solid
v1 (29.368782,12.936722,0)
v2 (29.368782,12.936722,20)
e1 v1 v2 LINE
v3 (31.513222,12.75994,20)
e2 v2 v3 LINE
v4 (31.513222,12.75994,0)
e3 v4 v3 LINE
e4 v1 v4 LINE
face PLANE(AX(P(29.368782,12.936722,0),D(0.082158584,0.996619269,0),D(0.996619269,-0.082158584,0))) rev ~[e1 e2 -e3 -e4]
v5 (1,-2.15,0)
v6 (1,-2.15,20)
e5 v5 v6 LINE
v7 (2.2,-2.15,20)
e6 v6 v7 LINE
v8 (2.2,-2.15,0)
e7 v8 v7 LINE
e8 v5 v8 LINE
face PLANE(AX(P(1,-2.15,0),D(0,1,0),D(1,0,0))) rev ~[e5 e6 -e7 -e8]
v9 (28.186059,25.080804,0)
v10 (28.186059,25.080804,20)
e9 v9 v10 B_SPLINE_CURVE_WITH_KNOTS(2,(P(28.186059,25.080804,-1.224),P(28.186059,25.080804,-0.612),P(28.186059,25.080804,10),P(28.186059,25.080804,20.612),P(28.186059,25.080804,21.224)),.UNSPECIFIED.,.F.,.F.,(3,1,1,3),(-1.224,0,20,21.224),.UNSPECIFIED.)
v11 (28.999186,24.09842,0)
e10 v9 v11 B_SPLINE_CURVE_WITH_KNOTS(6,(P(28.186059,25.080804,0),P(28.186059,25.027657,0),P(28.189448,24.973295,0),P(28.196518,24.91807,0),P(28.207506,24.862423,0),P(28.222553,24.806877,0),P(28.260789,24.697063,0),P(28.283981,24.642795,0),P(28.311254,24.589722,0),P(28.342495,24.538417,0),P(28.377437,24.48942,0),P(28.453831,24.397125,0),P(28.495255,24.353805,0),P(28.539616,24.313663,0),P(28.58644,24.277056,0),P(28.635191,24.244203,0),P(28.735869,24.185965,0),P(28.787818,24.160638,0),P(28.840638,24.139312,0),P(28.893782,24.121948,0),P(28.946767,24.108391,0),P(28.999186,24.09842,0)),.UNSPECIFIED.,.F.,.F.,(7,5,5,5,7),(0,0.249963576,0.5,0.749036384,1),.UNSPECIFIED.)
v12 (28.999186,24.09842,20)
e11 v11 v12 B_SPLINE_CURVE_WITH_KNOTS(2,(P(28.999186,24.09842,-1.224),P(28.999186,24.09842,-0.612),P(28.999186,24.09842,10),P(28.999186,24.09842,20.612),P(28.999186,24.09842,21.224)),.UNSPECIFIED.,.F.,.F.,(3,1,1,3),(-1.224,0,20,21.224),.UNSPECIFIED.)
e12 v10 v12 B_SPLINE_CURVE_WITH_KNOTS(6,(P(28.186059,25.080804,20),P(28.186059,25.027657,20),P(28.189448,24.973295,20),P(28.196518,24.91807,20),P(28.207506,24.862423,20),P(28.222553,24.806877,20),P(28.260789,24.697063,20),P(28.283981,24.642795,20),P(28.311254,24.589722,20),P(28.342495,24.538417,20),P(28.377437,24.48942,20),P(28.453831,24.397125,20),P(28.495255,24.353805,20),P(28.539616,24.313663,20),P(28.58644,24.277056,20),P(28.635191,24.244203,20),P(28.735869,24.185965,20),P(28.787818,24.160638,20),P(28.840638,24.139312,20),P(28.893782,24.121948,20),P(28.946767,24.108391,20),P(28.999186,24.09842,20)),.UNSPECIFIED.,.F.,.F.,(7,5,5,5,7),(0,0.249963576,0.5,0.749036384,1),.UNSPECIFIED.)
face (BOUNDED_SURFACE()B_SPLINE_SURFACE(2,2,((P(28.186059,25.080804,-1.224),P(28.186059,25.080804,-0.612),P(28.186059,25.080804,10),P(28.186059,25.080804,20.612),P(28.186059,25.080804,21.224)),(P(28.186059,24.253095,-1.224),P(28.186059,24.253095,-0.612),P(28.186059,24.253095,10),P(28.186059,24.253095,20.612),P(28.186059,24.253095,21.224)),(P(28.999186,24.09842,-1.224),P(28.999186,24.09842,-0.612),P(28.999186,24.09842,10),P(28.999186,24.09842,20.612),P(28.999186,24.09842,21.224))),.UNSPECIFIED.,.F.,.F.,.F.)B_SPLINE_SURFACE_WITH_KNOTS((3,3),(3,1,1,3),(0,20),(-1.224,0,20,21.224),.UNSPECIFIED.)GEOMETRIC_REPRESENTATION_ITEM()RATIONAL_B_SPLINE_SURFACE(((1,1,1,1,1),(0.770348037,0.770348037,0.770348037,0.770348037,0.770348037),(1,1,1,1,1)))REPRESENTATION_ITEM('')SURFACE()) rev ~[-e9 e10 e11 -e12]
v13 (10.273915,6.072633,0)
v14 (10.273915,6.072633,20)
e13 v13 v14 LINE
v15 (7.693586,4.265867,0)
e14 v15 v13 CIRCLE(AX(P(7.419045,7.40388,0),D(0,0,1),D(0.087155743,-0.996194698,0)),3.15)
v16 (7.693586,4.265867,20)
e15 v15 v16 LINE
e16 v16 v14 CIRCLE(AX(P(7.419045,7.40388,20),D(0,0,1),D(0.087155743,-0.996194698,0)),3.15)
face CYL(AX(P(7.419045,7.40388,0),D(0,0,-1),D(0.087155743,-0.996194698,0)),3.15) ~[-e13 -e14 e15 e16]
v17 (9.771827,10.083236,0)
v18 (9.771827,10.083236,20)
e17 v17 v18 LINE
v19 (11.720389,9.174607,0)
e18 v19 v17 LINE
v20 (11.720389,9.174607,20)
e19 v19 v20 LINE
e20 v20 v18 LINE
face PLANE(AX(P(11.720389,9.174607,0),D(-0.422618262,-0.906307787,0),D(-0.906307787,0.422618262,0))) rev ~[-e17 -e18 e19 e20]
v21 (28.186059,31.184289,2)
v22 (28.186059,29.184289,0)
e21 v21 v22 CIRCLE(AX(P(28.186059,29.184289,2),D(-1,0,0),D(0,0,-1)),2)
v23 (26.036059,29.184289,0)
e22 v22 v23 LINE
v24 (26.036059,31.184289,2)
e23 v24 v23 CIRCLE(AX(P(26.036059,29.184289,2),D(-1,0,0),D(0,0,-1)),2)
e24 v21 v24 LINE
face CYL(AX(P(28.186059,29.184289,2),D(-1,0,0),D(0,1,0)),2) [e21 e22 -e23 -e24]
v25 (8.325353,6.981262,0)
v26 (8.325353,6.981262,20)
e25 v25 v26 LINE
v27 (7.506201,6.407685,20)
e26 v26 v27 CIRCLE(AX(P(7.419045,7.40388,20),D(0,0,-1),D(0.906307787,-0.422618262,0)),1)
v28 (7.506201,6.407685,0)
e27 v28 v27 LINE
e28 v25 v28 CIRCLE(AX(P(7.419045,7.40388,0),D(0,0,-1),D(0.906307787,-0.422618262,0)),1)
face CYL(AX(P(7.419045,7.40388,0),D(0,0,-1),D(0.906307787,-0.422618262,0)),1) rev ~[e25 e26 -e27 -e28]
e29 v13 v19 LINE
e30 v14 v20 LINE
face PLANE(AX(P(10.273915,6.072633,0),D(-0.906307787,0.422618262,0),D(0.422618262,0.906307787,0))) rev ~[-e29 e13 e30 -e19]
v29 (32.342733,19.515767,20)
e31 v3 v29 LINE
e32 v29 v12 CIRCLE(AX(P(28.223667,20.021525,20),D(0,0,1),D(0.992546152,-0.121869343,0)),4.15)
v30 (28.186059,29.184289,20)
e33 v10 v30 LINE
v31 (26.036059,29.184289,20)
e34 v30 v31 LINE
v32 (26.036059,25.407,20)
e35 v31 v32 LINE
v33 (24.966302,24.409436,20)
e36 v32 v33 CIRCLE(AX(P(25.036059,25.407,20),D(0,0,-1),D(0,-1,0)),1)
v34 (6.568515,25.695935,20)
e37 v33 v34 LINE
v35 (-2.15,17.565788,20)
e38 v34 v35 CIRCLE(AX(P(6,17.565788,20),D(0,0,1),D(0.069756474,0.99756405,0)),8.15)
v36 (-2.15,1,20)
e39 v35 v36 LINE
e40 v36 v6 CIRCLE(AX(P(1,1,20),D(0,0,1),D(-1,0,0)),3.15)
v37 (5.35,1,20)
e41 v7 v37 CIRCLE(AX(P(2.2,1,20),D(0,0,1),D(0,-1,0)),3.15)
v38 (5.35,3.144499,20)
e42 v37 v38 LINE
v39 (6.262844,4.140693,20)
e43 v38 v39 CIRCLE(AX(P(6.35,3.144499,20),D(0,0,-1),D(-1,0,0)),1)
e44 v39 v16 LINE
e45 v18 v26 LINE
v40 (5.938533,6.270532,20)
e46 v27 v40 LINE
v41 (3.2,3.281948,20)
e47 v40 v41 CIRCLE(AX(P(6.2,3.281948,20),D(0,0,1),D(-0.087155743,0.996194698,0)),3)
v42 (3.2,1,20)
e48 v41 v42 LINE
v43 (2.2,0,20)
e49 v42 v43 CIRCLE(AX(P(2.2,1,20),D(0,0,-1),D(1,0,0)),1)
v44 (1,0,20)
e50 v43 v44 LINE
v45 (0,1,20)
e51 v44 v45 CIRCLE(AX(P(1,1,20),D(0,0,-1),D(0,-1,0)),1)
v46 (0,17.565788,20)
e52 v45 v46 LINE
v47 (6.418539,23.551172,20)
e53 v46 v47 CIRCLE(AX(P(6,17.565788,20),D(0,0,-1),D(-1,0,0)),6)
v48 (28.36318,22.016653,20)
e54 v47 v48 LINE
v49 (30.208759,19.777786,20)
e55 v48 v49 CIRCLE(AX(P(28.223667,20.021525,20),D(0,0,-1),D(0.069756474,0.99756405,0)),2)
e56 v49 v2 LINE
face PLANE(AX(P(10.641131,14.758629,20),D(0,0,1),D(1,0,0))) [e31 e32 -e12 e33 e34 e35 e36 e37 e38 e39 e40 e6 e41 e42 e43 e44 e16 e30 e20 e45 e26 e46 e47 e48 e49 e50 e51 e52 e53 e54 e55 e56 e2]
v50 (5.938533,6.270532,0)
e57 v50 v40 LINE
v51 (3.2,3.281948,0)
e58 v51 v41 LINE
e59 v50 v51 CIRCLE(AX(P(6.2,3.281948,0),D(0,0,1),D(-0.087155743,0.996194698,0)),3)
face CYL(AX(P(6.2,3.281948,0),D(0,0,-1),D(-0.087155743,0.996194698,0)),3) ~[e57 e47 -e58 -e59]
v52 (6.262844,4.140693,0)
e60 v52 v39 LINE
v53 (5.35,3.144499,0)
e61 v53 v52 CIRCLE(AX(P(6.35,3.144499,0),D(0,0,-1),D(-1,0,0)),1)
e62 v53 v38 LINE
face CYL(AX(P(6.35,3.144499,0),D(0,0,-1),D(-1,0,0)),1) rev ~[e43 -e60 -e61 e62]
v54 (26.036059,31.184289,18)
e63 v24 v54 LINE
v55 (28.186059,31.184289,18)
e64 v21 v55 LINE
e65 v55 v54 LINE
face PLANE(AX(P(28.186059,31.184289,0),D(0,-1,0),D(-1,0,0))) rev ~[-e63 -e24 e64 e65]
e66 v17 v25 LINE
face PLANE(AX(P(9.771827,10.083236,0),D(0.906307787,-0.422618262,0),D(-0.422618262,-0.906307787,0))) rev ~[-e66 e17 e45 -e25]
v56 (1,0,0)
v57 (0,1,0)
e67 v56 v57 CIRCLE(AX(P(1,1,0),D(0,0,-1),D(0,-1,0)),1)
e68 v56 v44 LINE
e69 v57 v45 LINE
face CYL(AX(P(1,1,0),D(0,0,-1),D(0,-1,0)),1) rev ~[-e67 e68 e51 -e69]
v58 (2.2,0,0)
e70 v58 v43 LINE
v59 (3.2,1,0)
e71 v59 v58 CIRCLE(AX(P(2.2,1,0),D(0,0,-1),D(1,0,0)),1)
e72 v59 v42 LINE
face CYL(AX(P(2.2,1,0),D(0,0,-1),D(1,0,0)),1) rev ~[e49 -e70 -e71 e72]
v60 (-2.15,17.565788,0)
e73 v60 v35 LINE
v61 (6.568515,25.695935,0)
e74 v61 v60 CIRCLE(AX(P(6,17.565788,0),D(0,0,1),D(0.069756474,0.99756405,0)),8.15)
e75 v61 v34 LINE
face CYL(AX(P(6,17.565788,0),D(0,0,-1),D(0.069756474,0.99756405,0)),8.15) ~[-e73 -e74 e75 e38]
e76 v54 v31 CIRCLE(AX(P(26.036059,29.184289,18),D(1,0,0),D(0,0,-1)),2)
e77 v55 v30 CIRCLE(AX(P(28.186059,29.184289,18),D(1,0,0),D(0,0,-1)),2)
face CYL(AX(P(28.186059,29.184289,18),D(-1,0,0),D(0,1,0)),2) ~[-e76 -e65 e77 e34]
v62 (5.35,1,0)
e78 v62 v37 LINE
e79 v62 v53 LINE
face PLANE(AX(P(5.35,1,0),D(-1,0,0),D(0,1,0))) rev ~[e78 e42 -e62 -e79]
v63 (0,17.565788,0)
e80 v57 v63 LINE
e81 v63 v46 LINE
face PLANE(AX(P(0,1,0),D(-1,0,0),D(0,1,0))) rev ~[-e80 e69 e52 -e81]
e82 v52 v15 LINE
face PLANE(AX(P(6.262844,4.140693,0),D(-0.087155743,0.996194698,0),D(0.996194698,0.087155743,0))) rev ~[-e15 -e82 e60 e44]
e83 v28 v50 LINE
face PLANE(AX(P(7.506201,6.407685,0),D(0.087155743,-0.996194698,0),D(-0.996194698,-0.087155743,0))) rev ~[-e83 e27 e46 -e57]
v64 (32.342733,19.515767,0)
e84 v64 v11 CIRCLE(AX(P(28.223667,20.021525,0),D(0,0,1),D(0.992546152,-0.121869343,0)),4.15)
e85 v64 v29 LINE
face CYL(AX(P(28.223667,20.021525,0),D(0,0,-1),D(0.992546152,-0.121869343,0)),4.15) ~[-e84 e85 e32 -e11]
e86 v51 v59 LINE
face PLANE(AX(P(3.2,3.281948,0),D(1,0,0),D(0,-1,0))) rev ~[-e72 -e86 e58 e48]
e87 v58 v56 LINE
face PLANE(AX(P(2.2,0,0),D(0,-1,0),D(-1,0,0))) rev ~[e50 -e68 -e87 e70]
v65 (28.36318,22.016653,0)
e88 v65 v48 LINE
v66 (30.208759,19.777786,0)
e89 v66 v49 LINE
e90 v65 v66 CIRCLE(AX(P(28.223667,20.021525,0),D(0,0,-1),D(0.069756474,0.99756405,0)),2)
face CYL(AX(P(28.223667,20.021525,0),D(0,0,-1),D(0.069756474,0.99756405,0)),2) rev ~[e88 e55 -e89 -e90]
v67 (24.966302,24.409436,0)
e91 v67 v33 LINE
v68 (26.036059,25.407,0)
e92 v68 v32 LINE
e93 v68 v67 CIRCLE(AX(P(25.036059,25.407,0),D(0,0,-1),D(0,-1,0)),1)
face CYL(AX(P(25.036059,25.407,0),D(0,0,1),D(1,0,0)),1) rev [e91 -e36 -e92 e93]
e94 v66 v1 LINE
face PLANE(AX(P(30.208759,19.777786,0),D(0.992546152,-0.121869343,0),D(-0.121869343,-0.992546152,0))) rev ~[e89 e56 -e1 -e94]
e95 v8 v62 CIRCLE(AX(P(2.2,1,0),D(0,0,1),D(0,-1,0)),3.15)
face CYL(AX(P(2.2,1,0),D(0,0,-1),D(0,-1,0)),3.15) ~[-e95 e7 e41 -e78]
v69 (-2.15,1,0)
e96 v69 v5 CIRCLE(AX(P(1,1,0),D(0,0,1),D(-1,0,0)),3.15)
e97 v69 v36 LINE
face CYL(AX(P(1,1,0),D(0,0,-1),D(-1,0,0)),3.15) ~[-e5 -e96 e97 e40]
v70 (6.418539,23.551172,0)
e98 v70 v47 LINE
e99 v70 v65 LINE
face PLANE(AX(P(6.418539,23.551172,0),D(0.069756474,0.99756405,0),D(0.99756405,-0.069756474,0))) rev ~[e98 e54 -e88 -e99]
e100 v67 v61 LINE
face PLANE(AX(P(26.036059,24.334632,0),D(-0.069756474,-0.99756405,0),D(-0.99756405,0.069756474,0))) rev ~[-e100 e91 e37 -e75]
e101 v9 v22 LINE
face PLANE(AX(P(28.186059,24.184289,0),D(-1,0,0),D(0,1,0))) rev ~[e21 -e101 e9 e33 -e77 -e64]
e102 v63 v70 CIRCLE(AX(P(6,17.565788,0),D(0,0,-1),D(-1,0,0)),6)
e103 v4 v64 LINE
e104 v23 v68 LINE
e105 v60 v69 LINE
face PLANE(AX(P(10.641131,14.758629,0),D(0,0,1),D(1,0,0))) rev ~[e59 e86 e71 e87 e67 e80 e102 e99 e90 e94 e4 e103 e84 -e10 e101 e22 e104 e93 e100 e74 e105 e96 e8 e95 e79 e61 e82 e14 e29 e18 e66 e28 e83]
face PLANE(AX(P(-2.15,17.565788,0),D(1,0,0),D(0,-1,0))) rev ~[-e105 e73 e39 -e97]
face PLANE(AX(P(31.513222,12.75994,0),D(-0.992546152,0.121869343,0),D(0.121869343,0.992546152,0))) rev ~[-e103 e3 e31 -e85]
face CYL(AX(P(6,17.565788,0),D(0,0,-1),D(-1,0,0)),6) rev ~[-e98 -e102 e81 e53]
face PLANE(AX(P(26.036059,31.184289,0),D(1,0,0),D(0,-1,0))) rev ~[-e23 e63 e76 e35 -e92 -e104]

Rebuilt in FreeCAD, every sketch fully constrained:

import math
import FreeCAD as App
import Part
import Sketcher
from FreeCAD import Vector
Q = App.Units.Quantity


def edges_at(feature, points):
    """Names of the edges that pass closest to the given points."""
    edges = feature.Shape.Edges
    near = lambda p: min(range(len(edges)), key=lambda i: edges[i].distToShape(Part.Vertex(*p))[0])
    return sorted({f"Edge{near(p) + 1}" for p in points})

doc = App.newDocument("Part")
body = doc.addObject("PartDesign::Body", "Body")

sketch1 = body.newObject("Sketcher::SketchObject", "Sketch")
sketch1.AttachmentSupport = (doc.getObject("XY_Plane"), [""])
sketch1.MapMode = "FlatFace"
sketch1.addGeometry([
    Part.ArcOfCircle(Part.Circle(Vector(1, 1, 0), Vector(0, 0, 1), 1), math.radians(180), math.radians(270)),
    Part.LineSegment(Vector(0, 1, 0), Vector(0, 17.57, 0)),
    Part.ArcOfCircle(Part.Circle(Vector(6, 17.57, 0), Vector(0, 0, 1), 6), math.radians(86), math.radians(180)),
    Part.LineSegment(Vector(6.42, 23.55, 0), Vector(28.36, 22.02, 0)),
    Part.ArcOfCircle(Part.Circle(Vector(28.22, 20.02, 0), Vector(0, 0, 1), 2), math.radians(-7), math.radians(86)),
    Part.LineSegment(Vector(30.21, 19.78, 0), Vector(29.37, 12.94, 0)),
    Part.LineSegment(Vector(29.37, 12.94, 0), Vector(31.51, 12.76, 0)),
    Part.LineSegment(Vector(31.51, 12.76, 0), Vector(32.34, 19.52, 0)),
    Part.ArcOfCircle(Part.Circle(Vector(28.22, 20.02, 0), Vector(0, 0, 1), 4.15), math.radians(-7), math.radians(86)),
    Part.LineSegment(Vector(28.51, 24.16, 0), Vector(28.19, 24.18, 0)),
    Part.LineSegment(Vector(28.19, 24.18, 0), Vector(28.19, 31.18, 0)),
    Part.LineSegment(Vector(28.19, 31.18, 0), Vector(26.04, 31.18, 0)),
    Part.LineSegment(Vector(26.04, 31.18, 0), Vector(26.04, 24.33, 0)),
    Part.LineSegment(Vector(26.04, 24.33, 0), Vector(6.57, 25.7, 0)),
    Part.ArcOfCircle(Part.Circle(Vector(6, 17.57, 0), Vector(0, 0, 1), 8.15), math.radians(86), math.radians(180)),
    Part.LineSegment(Vector(-2.15, 17.57, 0), Vector(-2.15, 1, 0)),
    Part.ArcOfCircle(Part.Circle(Vector(1, 1, 0), Vector(0, 0, 1), 3.15), math.radians(180), math.radians(270)),
    Part.LineSegment(Vector(1, -2.15, 0), Vector(2.2, -2.15, 0)),
    Part.ArcOfCircle(Part.Circle(Vector(2.2, 1, 0), Vector(0, 0, 1), 3.15), math.radians(-90), math.radians(0)),
    Part.LineSegment(Vector(5.35, 1, 0), Vector(5.35, 3.14, 0)),
    Part.ArcOfCircle(Part.Circle(Vector(6.35, 3.14, 0), Vector(0, 0, 1), 1), math.radians(95), math.radians(180)),
    Part.LineSegment(Vector(6.26, 4.14, 0), Vector(7.69, 4.27, 0)),
    Part.ArcOfCircle(Part.Circle(Vector(7.42, 7.4, 0), Vector(0, 0, 1), 3.15), math.radians(-85), math.radians(-25)),
    Part.LineSegment(Vector(10.27, 6.07, 0), Vector(11.72, 9.17, 0)),
    Part.LineSegment(Vector(11.72, 9.17, 0), Vector(9.77, 10.08, 0)),
    Part.LineSegment(Vector(9.77, 10.08, 0), Vector(8.33, 6.98, 0)),
    Part.ArcOfCircle(Part.Circle(Vector(7.42, 7.4, 0), Vector(0, 0, 1), 1), math.radians(-85), math.radians(-25)),
    Part.LineSegment(Vector(7.51, 6.41, 0), Vector(5.94, 6.27, 0)),
    Part.ArcOfCircle(Part.Circle(Vector(6.2, 3.28, 0), Vector(0, 0, 1), 3), math.radians(95), math.radians(180)),
    Part.LineSegment(Vector(3.2, 3.28, 0), Vector(3.2, 1, 0)),
    Part.ArcOfCircle(Part.Circle(Vector(2.2, 1, 0), Vector(0, 0, 1), 1), math.radians(-90), math.radians(0)),
    Part.LineSegment(Vector(2.2, 0, 0), Vector(1, 0, 0)),
], False)
sketch1.addConstraint([
    Sketcher.Constraint("Tangent", 0, 1, 1, 1),
    Sketcher.Constraint("Tangent", 1, 2, 2, 2),
    Sketcher.Constraint("Tangent", 2, 1, 3, 1),
    Sketcher.Constraint("Tangent", 3, 2, 4, 2),
    Sketcher.Constraint("Tangent", 4, 1, 5, 1),
    Sketcher.Constraint("Coincident", 5, 2, 6, 1),
    Sketcher.Constraint("Coincident", 6, 2, 7, 1),
    Sketcher.Constraint("Tangent", 7, 2, 8, 1),
    Sketcher.Constraint("Tangent", 8, 2, 9, 1),
    Sketcher.Constraint("Coincident", 9, 2, 10, 1),
    Sketcher.Constraint("Coincident", 10, 2, 11, 1),
    Sketcher.Constraint("Coincident", 11, 2, 12, 1),
    Sketcher.Constraint("Coincident", 12, 2, 13, 1),
    Sketcher.Constraint("Tangent", 13, 2, 14, 1),
    Sketcher.Constraint("Tangent", 14, 2, 15, 1),
    Sketcher.Constraint("Tangent", 15, 2, 16, 1),
    Sketcher.Constraint("Tangent", 16, 2, 17, 1),
    Sketcher.Constraint("Tangent", 17, 2, 18, 1),
    Sketcher.Constraint("Tangent", 18, 2, 19, 1),
    Sketcher.Constraint("Tangent", 19, 2, 20, 2),
    Sketcher.Constraint("Tangent", 20, 1, 21, 1),
    Sketcher.Constraint("Tangent", 21, 2, 22, 1),
    Sketcher.Constraint("Tangent", 22, 2, 23, 1),
    Sketcher.Constraint("Coincident", 23, 2, 24, 1),
    Sketcher.Constraint("Coincident", 24, 2, 25, 1),
    Sketcher.Constraint("Tangent", 25, 2, 26, 2),
    Sketcher.Constraint("Tangent", 26, 1, 27, 1),
    Sketcher.Constraint("Tangent", 27, 2, 28, 1),
    Sketcher.Constraint("Tangent", 28, 2, 29, 1),
    Sketcher.Constraint("Tangent", 29, 2, 30, 2),
    Sketcher.Constraint("Tangent", 30, 1, 31, 1),
    Sketcher.Constraint("Tangent", 31, 2, 0, 2),
    Sketcher.Constraint("Vertical", 1),
    Sketcher.Constraint("Vertical", 10),
    Sketcher.Constraint("Horizontal", 11),
    Sketcher.Constraint("Vertical", 12),
    Sketcher.Constraint("Vertical", 15),
    Sketcher.Constraint("Horizontal", 17),
    Sketcher.Constraint("Vertical", 19),
    Sketcher.Constraint("Vertical", 29),
    Sketcher.Constraint("Horizontal", 31),
    Sketcher.Constraint("Coincident", 8, 3, 4, 3),
    Sketcher.Constraint("Coincident", 14, 3, 2, 3),
    Sketcher.Constraint("Coincident", 16, 3, 0, 3),
    Sketcher.Constraint("Coincident", 26, 3, 22, 3),
    Sketcher.Constraint("Coincident", 30, 3, 18, 3),
    Sketcher.Constraint("Equal", 16, 18),
    Sketcher.Constraint("Equal", 0, 20),
    Sketcher.Constraint("Equal", 18, 22),
    Sketcher.Constraint("Equal", 20, 26),
    Sketcher.Constraint("PointOnObject", 0, 1, -2),
    Sketcher.Constraint("PointOnObject", 30, 1, -1),
    Sketcher.Constraint("Parallel", 5, 7),
    Sketcher.Constraint("Parallel", 3, 9),
    Sketcher.Constraint("Parallel", 9, 13),
    Sketcher.Constraint("Perpendicular", 23, 24),
    Sketcher.Constraint("Perpendicular", 24, 25),
    Sketcher.Constraint("Parallel", 21, 27),
    Sketcher.Constraint("Radius", 0, 1.0),
    Sketcher.Constraint("Radius", 2, 6.0),
    Sketcher.Constraint("Radius", 4, 2.0),
    Sketcher.Constraint("Radius", 28, 3.0),
    Sketcher.Constraint("DistanceY", 10, 1, 10, 2, 7.0),
    Sketcher.Constraint("Angle", 3, Q("-4 deg")),
    Sketcher.Constraint("Angle", 5, Q("-97 deg")),
    Sketcher.Constraint("Angle", 21, Q("5 deg")),
    Sketcher.Constraint("Angle", 23, Q("65 deg")),
    Sketcher.Constraint("Radius", 8, 4.15),
    Sketcher.Constraint("Radius", 14, 8.15),
    Sketcher.Constraint("DistanceX", 17, 1, 17, 2, 1.2),
    Sketcher.Constraint("DistanceX", 11, 2, 11, 1, 2.15),
    Sketcher.Constraint("DistanceY", 19, 1, 19, 2, 2.144499),
    Sketcher.Constraint("DistanceY", 2, 3, 4, 1, 2.211999),
    Sketcher.Constraint("DistanceX", -1, 1, 26, 1, 7.506201),
    Sketcher.Constraint("DistanceX", 9, 2, 4, 1, 2.0227),
    Sketcher.Constraint("Distance", 5, 6.89244),
    Sketcher.Constraint("Distance", 23, 3.42265),
    Sketcher.Constraint("DistanceY", 1, 1, 1, 2, 16.565788),
    Sketcher.Constraint("DistanceY", -1, 1, 6, 2, 12.75994),
])
pad1 = body.newObject("PartDesign::Pad", "Pad")
pad1.Profile = sketch1
pad1.Length = 20
doc.recompute()

fillet = body.newObject("PartDesign::Fillet", "Fillet")
fillet.Base = (pad1, edges_at(pad1, [(27.111, 31.184, 20), (27.111, 31.184, 0)]))
fillet.Radius = 2
doc.recompute()

fillet2 = body.newObject("PartDesign::Fillet", "Fillet001")
fillet2.Base = (fillet, edges_at(fillet, [(26.036, 24.335, 10), (28.186, 24.184, 10)]))
fillet2.Radius = 1

doc.recompute()
